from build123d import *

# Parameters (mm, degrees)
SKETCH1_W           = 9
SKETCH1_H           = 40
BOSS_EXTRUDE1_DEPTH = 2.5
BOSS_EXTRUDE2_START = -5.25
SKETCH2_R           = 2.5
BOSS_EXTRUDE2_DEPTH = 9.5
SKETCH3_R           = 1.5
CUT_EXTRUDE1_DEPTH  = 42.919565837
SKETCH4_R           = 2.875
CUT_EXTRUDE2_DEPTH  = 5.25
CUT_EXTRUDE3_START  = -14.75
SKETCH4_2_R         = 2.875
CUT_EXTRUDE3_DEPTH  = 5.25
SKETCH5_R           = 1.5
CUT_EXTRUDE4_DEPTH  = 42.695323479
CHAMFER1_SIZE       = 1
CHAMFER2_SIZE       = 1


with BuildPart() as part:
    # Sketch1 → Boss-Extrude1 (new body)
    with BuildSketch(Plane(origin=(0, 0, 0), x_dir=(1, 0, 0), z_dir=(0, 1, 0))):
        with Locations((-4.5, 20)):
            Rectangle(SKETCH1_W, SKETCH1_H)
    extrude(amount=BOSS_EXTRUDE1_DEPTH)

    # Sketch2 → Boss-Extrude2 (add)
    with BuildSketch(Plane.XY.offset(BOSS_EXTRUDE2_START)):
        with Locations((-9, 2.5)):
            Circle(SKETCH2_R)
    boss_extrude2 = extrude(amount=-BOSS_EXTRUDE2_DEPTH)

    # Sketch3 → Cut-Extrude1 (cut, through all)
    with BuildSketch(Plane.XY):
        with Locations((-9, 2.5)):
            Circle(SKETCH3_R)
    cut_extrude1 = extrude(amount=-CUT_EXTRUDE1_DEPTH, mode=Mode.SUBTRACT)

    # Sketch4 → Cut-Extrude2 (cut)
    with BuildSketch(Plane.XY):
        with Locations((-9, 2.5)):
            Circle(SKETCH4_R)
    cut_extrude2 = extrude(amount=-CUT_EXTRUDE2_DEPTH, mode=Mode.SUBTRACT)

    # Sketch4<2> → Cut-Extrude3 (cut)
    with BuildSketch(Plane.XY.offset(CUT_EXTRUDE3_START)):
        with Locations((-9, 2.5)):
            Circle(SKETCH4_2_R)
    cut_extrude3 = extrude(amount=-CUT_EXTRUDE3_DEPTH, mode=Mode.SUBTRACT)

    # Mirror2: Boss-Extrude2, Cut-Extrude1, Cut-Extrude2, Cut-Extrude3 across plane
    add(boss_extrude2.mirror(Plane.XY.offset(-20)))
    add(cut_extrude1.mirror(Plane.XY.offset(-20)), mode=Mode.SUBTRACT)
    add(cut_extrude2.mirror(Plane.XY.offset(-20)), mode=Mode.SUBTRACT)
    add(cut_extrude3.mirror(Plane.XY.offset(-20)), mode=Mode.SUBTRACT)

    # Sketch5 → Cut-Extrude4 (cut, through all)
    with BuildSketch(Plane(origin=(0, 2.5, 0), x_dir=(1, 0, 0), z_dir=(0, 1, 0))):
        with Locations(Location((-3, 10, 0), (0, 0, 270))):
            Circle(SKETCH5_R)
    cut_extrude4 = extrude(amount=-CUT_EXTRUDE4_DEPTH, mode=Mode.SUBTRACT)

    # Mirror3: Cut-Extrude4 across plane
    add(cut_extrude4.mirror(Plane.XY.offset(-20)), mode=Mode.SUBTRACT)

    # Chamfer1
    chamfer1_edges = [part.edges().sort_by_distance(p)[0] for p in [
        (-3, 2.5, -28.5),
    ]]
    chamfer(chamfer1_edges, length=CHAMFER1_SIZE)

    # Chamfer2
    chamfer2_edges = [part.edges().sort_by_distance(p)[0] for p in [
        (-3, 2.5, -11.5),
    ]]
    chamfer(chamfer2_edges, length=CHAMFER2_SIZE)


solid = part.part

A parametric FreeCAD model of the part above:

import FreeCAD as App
import Part
import Sketcher


def edges_at(feature, points):
    """Names of the edges that pass closest to the given points."""
    edges = feature.Shape.Edges
    near = lambda p: min(range(len(edges)), key=lambda i: edges[i].distToShape(Part.Vertex(*p))[0])
    return sorted({f"Edge{near(p) + 1}" for p in points})


def add_polygon(sketch, points):
    """Adds a closed chain of lines whose ends are joined by coincident constraints."""
    first, n = sketch.GeometryCount, len(points)
    for a, b in zip(points, points[1:] + points[:1]):
        sketch.addGeometry(Part.LineSegment(App.Vector(*a, 0), App.Vector(*b, 0)), False)
    for i in range(n):
        sketch.addConstraint(Sketcher.Constraint("Coincident", first + i, 2, first + (i + 1) % n, 1))

doc = App.newDocument("Part")
params = doc.addObject("Spreadsheet::Sheet", "Params")
for row, (alias, value) in enumerate([
    ("sketch1_width", "9 mm"),
    ("sketch1_height", "40 mm"),
    ("pad1_length", "2.5 mm"),
    ("sketch2_diameter", "5 mm"),
    ("pad2_length", "9.5 mm"),
    ("sketch3_diameter", "3 mm"),
    ("sketch4_diameter", "5.75 mm"),
    ("pocket2_length", "5.25 mm"),
    ("sketch5_diameter", "5.75 mm"),
    ("pocket3_length", "5.25 mm"),
    ("sketch6_diameter", "3 mm"),
    ("chamfer_size", "1 mm"),
    ("chamfer2_size", "1 mm"),
], start=1):
    params.set(f"A{row}", alias)
    params.set(f"B{row}", "=" + value)
    params.setAlias(f"B{row}", alias)

body = doc.addObject("PartDesign::Body", "Body")

sketch1 = body.newObject("Sketcher::SketchObject", "Sketch")
sketch1.AttachmentSupport = (doc.getObject("XZ_Plane"), [""])
sketch1.MapMode = "FlatFace"
add_polygon(sketch1, [(-9, -40), (-9, 0), (0, 0), (0, -40)])
sketch1.addConstraint(Sketcher.Constraint("Vertical", 0))
sketch1.addConstraint(Sketcher.Constraint("Horizontal", 1))
sketch1.addConstraint(Sketcher.Constraint("Vertical", 2))
sketch1.addConstraint(Sketcher.Constraint("Horizontal", 3))
sketch1.addConstraint(Sketcher.Constraint("Coincident", 1, 2, -1, 1))
sketch1.addConstraint(Sketcher.Constraint("DistanceX", 1, 1, 1, 2, 9.0))
sketch1.addConstraint(Sketcher.Constraint("DistanceY", 0, 1, 0, 2, 40.0))
sketch1.setExpression("Constraints[9]", "Params.sketch1_width")
sketch1.setExpression("Constraints[10]", "Params.sketch1_height")
pad1 = body.newObject("PartDesign::Pad", "Pad")
pad1.Profile = sketch1
pad1.setExpression("Length", "Params.pad1_length")
pad1.Reversed = True

sketch2 = body.newObject("Sketcher::SketchObject", "Sketch001")
sketch2.AttachmentSupport = (doc.getObject("XY_Plane"), [""])
sketch2.MapMode = "FlatFace"
sketch2.AttachmentOffset = App.Placement(App.Vector(0, 0, -5.25), App.Rotation())
sketch2.addGeometry(Part.Circle(App.Vector(-9, 2.5, 0), App.Vector(0, 0, 1), 2.5), False)
sketch2.addConstraint(Sketcher.Constraint("Diameter", 0, 5.0))
sketch2.addConstraint(Sketcher.Constraint("DistanceX", 0, 3, -1, 1, 9.0))
sketch2.addConstraint(Sketcher.Constraint("DistanceY", -1, 1, 0, 3, 2.5))
sketch2.setExpression("Constraints[0]", "Params.sketch2_diameter")
pad2 = body.newObject("PartDesign::Pad", "Pad001")
pad2.Profile = sketch2
pad2.setExpression("Length", "Params.pad2_length")
pad2.Reversed = True

sketch3 = body.newObject("Sketcher::SketchObject", "Sketch002")
sketch3.AttachmentSupport = (doc.getObject("XY_Plane"), [""])
sketch3.MapMode = "FlatFace"
sketch3.addGeometry(Part.Circle(App.Vector(-9, 2.5, 0), App.Vector(0, 0, 1), 1.5), False)
sketch3.addConstraint(Sketcher.Constraint("Diameter", 0, 3.0))
sketch3.addConstraint(Sketcher.Constraint("DistanceX", 0, 3, -1, 1, 9.0))
sketch3.addConstraint(Sketcher.Constraint("DistanceY", -1, 1, 0, 3, 2.5))
sketch3.setExpression("Constraints[0]", "Params.sketch3_diameter")
pocket1 = body.newObject("PartDesign::Pocket", "Pocket")
pocket1.Profile = sketch3
pocket1.Type = "ThroughAll"

sketch4 = body.newObject("Sketcher::SketchObject", "Sketch003")
sketch4.AttachmentSupport = (doc.getObject("XY_Plane"), [""])
sketch4.MapMode = "FlatFace"
sketch4.addGeometry(Part.Circle(App.Vector(-9, 2.5, 0), App.Vector(0, 0, 1), 2.9), False)
sketch4.addConstraint(Sketcher.Constraint("Diameter", 0, 5.75))
sketch4.addConstraint(Sketcher.Constraint("DistanceX", 0, 3, -1, 1, 9.0))
sketch4.addConstraint(Sketcher.Constraint("DistanceY", -1, 1, 0, 3, 2.5))
sketch4.setExpression("Constraints[0]", "Params.sketch4_diameter")
pocket2 = body.newObject("PartDesign::Pocket", "Pocket001")
pocket2.Profile = sketch4
pocket2.setExpression("Length", "Params.pocket2_length")

sketch5 = body.newObject("Sketcher::SketchObject", "Sketch004")
sketch5.AttachmentSupport = (doc.getObject("XY_Plane"), [""])
sketch5.MapMode = "FlatFace"
sketch5.AttachmentOffset = App.Placement(App.Vector(0, 0, -14.75), App.Rotation())
sketch5.addGeometry(Part.Circle(App.Vector(-9, 2.5, 0), App.Vector(0, 0, 1), 2.9), False)
sketch5.addConstraint(Sketcher.Constraint("Diameter", 0, 5.75))
sketch5.addConstraint(Sketcher.Constraint("DistanceX", 0, 3, -1, 1, 9.0))
sketch5.addConstraint(Sketcher.Constraint("DistanceY", -1, 1, 0, 3, 2.5))
sketch5.setExpression("Constraints[0]", "Params.sketch5_diameter")
pocket3 = body.newObject("PartDesign::Pocket", "Pocket002")
pocket3.Profile = sketch5
pocket3.setExpression("Length", "Params.pocket3_length")
doc.recompute()

datumplane = body.newObject("PartDesign::Plane", "DatumPlane")
datumplane.AttachmentSupport = (doc.getObject("XY_Plane"), [""])
datumplane.MapMode = "FlatFace"
datumplane.AttachmentOffset = App.Placement(App.Vector(0, 0, -20), App.Rotation())
mirrored = body.newObject("PartDesign::Mirrored", "Mirrored")
mirrored.Originals = [pad2, pocket1, pocket2, pocket3]
mirrored.MirrorPlane = (datumplane, [""])
body.Tip = mirrored

sketch6 = body.newObject("Sketcher::SketchObject", "Sketch005")
sketch6.AttachmentSupport = (doc.getObject("XZ_Plane"), [""])
sketch6.MapMode = "FlatFace"
sketch6.AttachmentOffset = App.Placement(App.Vector(0, 0, -2.5), App.Rotation())
sketch6.addGeometry(Part.Circle(App.Vector(-3, -10, 0), App.Vector(0, 0, 1), 1.5), False)
sketch6.addConstraint(Sketcher.Constraint("Diameter", 0, 3.0))
sketch6.addConstraint(Sketcher.Constraint("DistanceX", 0, 3, -1, 1, 3.0))
sketch6.addConstraint(Sketcher.Constraint("DistanceY", 0, 3, -1, 1, 10.0))
sketch6.setExpression("Constraints[0]", "Params.sketch6_diameter")
pocket4 = body.newObject("PartDesign::Pocket", "Pocket003")
pocket4.Profile = sketch6
pocket4.Type = "ThroughAll"
pocket4.Reversed = True
doc.recompute()

datumplane2 = body.newObject("PartDesign::Plane", "DatumPlane001")
datumplane2.AttachmentSupport = (doc.getObject("XY_Plane"), [""])
datumplane2.MapMode = "FlatFace"
datumplane2.AttachmentOffset = App.Placement(App.Vector(0, 0, -20), App.Rotation())
mirrored2 = body.newObject("PartDesign::Mirrored", "Mirrored001")
mirrored2.Originals = [pocket4]
mirrored2.MirrorPlane = (datumplane2, [""])
body.Tip = mirrored2
doc.recompute()

chamfer = body.newObject("PartDesign::Chamfer", "Chamfer")
chamfer.Base = (mirrored2, edges_at(mirrored2, [(-3, 2.5, -28.5)]))
chamfer.setExpression("Size", "Params.chamfer_size")
doc.recompute()

chamfer2 = body.newObject("PartDesign::Chamfer", "Chamfer001")
chamfer2.Base = (chamfer, edges_at(chamfer, [(-3, 2.5, -11.5)]))
chamfer2.setExpression("Size", "Params.chamfer2_size")

doc.recompute()
